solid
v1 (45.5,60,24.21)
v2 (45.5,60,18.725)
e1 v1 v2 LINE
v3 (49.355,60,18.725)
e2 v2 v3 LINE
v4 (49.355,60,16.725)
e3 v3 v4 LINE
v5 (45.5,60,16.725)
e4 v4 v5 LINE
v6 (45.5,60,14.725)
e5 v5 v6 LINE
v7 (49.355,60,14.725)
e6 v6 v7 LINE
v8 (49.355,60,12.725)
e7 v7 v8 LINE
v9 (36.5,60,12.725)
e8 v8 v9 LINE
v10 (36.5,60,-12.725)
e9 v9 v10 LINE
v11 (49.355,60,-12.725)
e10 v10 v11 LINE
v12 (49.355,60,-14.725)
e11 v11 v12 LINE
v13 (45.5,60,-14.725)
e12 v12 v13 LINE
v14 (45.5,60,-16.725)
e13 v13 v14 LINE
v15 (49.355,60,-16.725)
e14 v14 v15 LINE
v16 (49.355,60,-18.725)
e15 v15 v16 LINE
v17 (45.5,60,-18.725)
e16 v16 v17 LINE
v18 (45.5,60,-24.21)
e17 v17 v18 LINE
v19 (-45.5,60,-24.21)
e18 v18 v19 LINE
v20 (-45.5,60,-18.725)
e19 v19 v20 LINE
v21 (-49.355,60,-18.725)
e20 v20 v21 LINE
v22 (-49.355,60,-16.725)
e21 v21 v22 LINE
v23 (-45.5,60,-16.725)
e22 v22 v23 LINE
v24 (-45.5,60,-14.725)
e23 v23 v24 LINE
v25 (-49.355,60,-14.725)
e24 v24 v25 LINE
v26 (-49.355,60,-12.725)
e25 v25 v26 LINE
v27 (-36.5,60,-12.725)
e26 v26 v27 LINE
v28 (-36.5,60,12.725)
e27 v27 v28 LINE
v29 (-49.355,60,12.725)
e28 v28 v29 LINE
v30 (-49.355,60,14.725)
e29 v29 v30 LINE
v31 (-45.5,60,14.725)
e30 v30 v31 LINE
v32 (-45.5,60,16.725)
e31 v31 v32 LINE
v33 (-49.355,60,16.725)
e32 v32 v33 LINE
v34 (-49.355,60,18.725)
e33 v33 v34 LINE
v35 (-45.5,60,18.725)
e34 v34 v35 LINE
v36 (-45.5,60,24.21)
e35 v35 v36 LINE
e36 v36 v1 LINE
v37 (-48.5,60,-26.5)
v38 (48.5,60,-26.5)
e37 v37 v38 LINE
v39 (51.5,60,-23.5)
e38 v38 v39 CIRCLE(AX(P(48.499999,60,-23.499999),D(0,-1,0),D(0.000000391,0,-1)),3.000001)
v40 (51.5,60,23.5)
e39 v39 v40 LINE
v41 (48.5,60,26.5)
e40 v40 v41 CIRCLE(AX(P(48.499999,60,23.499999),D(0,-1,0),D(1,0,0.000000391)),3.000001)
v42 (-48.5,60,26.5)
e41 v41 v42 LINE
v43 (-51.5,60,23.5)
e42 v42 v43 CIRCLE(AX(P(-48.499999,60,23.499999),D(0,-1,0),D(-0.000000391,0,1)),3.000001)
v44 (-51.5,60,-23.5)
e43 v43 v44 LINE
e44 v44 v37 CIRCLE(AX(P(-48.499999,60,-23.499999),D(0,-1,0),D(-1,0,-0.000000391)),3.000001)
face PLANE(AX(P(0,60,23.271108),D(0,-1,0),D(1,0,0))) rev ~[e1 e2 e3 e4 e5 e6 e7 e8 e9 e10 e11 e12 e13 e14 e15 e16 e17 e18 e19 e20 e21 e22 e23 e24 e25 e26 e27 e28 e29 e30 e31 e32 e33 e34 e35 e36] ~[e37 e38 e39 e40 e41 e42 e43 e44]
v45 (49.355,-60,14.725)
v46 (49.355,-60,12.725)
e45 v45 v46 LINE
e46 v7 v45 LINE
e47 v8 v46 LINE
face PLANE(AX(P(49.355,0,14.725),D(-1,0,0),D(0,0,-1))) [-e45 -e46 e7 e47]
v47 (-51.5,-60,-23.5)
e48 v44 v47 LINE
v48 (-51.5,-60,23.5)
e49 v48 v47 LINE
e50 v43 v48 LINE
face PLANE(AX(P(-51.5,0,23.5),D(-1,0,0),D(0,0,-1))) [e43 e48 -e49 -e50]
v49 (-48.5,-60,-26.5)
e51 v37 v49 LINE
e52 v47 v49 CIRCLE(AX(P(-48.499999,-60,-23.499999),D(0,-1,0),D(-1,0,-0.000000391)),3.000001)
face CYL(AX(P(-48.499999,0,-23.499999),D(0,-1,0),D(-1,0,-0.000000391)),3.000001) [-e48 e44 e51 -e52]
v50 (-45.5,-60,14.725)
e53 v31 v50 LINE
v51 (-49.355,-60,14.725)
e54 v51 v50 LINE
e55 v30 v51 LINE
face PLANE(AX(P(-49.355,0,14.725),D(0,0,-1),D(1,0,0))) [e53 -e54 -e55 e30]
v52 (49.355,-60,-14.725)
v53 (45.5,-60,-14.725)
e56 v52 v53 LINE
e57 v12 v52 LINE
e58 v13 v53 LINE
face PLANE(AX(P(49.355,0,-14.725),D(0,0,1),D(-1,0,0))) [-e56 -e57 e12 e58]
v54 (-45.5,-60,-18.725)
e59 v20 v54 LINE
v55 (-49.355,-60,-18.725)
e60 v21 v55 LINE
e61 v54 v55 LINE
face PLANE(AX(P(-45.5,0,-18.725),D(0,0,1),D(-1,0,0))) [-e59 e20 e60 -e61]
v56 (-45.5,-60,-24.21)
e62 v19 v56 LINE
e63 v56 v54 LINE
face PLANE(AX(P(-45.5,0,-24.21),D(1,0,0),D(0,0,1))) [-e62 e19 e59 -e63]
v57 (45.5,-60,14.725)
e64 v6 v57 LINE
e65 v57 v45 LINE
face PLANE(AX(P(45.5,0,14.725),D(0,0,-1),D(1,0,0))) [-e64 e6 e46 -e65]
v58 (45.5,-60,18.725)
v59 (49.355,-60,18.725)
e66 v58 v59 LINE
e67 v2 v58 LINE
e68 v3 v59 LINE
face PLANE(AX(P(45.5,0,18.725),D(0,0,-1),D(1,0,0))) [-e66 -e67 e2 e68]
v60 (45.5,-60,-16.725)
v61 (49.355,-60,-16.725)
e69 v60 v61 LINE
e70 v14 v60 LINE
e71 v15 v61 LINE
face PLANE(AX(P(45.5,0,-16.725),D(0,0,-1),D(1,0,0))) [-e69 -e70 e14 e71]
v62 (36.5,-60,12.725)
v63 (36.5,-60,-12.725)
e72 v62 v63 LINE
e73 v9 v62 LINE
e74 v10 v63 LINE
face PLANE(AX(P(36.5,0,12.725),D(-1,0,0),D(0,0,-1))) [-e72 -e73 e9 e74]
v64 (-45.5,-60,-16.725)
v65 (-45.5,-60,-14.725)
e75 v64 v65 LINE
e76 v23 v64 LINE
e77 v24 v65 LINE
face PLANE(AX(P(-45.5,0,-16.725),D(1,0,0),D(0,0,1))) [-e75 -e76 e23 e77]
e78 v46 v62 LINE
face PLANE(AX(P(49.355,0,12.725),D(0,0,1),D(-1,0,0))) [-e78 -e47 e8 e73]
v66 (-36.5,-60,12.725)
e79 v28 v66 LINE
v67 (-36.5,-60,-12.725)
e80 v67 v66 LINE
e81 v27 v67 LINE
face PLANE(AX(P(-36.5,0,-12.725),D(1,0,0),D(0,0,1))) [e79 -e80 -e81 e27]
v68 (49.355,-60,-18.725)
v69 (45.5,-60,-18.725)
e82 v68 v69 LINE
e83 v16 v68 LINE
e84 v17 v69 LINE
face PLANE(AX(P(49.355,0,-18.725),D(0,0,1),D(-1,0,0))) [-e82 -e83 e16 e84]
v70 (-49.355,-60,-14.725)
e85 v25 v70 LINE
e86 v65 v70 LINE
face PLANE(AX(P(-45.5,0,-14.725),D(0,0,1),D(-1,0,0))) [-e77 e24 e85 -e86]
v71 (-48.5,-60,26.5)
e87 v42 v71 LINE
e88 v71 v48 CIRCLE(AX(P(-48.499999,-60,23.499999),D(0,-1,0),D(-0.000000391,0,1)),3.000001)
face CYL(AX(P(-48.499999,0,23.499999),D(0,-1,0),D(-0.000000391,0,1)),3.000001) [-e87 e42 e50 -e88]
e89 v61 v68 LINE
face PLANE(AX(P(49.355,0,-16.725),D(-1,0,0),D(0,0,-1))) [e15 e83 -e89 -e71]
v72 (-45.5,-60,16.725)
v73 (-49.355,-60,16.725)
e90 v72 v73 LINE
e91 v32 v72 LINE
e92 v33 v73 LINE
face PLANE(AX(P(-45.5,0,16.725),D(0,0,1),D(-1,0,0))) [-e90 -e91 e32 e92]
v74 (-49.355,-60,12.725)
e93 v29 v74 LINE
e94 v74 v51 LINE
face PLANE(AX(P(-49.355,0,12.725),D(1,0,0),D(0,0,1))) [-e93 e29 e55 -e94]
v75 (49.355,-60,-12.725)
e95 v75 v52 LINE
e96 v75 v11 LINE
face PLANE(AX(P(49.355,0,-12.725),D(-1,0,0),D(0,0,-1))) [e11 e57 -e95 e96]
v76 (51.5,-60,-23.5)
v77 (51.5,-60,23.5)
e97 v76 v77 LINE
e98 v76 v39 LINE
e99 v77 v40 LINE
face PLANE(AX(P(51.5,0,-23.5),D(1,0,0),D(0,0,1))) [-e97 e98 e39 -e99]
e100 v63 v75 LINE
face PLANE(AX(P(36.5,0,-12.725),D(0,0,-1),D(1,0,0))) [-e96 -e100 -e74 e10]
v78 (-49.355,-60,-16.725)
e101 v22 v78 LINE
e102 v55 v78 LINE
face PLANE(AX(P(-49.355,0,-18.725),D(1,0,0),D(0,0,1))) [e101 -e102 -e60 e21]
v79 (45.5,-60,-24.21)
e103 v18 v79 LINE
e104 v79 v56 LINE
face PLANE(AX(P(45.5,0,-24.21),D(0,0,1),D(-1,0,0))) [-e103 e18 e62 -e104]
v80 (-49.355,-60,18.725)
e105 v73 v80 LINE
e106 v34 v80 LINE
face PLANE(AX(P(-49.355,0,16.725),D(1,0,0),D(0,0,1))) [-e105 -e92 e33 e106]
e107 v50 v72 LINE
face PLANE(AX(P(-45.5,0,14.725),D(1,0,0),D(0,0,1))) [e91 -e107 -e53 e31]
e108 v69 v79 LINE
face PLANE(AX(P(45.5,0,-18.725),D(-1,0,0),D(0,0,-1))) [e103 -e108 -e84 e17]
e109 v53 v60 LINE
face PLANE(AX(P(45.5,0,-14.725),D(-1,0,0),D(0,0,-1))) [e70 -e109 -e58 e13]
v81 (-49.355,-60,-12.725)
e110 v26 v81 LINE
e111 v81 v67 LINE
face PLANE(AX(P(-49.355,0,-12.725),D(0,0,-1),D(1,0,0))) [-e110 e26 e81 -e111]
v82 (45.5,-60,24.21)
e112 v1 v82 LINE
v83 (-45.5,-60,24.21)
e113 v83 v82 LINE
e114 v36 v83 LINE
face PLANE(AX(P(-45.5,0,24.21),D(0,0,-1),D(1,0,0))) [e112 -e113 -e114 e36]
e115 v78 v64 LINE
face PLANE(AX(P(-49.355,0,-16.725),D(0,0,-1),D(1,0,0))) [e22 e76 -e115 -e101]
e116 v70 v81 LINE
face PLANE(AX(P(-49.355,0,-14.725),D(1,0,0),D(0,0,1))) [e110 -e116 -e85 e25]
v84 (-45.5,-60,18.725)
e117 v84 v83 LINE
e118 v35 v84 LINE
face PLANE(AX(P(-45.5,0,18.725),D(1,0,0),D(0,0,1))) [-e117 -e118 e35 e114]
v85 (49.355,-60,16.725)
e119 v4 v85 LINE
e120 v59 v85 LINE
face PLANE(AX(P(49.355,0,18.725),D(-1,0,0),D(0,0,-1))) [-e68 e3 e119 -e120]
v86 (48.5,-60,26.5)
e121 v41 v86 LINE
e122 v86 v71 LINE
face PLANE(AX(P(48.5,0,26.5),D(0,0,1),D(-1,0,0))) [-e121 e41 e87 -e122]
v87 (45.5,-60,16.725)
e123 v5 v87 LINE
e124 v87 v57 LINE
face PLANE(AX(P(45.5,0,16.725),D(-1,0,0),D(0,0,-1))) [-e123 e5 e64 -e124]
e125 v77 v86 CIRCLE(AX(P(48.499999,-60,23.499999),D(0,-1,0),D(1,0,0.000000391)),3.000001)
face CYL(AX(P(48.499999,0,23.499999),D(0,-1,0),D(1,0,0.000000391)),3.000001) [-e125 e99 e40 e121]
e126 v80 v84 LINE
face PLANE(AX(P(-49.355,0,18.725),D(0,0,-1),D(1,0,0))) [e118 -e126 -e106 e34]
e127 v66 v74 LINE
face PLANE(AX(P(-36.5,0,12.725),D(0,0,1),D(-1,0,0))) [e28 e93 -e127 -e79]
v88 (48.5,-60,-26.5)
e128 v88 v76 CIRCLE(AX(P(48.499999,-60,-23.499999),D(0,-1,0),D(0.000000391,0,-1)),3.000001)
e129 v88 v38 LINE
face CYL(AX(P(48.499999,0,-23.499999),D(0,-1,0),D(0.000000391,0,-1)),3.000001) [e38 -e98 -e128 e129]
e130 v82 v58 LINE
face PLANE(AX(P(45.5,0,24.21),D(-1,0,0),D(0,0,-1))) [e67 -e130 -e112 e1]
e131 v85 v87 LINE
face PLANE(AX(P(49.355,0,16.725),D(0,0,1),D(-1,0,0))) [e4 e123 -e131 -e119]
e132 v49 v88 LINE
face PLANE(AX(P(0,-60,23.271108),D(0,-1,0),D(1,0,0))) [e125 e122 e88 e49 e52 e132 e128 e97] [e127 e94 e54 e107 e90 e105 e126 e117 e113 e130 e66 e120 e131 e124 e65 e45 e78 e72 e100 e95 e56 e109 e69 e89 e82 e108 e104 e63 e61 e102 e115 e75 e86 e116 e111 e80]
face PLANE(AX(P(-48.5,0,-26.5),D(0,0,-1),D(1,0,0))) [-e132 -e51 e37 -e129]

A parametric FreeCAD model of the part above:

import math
import FreeCAD as App
import Part
import Sketcher
Q = App.Units.Quantity

doc = App.newDocument("Part")
body = doc.addObject("PartDesign::Body", "Body")

sketch1 = doc.addObject("Sketcher::SketchObject", "Sketch")
body.addObject(sketch1)
sketch1.AttachmentSupport = (doc.XZ_Plane, [""])
sketch1.MapMode = "FlatFace"
sketch1.addGeometry(Part.ArcOfCircle(Part.Circle(App.Vector(48.5, 23.5, 0), App.Vector(0, 0, 1), 3), math.radians(0), math.radians(90)), False)
sketch1.addGeometry(Part.LineSegment(App.Vector(48.5, 26.5, 0), App.Vector(-48.5, 26.5, 0)), False)
sketch1.addGeometry(Part.ArcOfCircle(Part.Circle(App.Vector(-48.5, 23.5, 0), App.Vector(0, 0, 1), 3), math.radians(90), math.radians(180)), False)
sketch1.addGeometry(Part.LineSegment(App.Vector(-51.5, 23.5, 0), App.Vector(-51.5, -23.5, 0)), False)
sketch1.addGeometry(Part.ArcOfCircle(Part.Circle(App.Vector(-48.5, -23.5, 0), App.Vector(0, 0, 1), 3), math.radians(-180), math.radians(-90)), False)
sketch1.addGeometry(Part.LineSegment(App.Vector(-48.5, -26.5, 0), App.Vector(48.5, -26.5, 0)), False)
sketch1.addGeometry(Part.ArcOfCircle(Part.Circle(App.Vector(48.5, -23.5, 0), App.Vector(0, 0, 1), 3), math.radians(-90), math.radians(0)), False)
sketch1.addGeometry(Part.LineSegment(App.Vector(51.5, -23.5, 0), App.Vector(51.5, 23.5, 0)), False)
sketch1.addGeometry(Part.LineSegment(App.Vector(49.4, -12.7, 0), App.Vector(49.4, -14.7, 0)), False)
sketch1.addGeometry(Part.LineSegment(App.Vector(49.4, -14.7, 0), App.Vector(45.5, -14.7, 0)), False)
sketch1.addGeometry(Part.LineSegment(App.Vector(45.5, -14.7, 0), App.Vector(45.5, -16.7, 0)), False)
sketch1.addGeometry(Part.LineSegment(App.Vector(45.5, -16.7, 0), App.Vector(49.4, -16.7, 0)), False)
sketch1.addGeometry(Part.LineSegment(App.Vector(49.4, -16.7, 0), App.Vector(49.4, -18.7, 0)), False)
sketch1.addGeometry(Part.LineSegment(App.Vector(49.4, -18.7, 0), App.Vector(45.5, -18.7, 0)), False)
sketch1.addGeometry(Part.LineSegment(App.Vector(45.5, -18.7, 0), App.Vector(45.5, -24.2, 0)), False)
sketch1.addGeometry(Part.LineSegment(App.Vector(45.5, -24.2, 0), App.Vector(-45.5, -24.2, 0)), False)
sketch1.addGeometry(Part.LineSegment(App.Vector(-45.5, -24.2, 0), App.Vector(-45.5, -18.7, 0)), False)
sketch1.addGeometry(Part.LineSegment(App.Vector(-45.5, -18.7, 0), App.Vector(-49.4, -18.7, 0)), False)
sketch1.addGeometry(Part.LineSegment(App.Vector(-49.4, -18.7, 0), App.Vector(-49.4, -16.7, 0)), False)
sketch1.addGeometry(Part.LineSegment(App.Vector(-49.4, -16.7, 0), App.Vector(-45.5, -16.7, 0)), False)
sketch1.addGeometry(Part.LineSegment(App.Vector(-45.5, -16.7, 0), App.Vector(-45.5, -14.7, 0)), False)
sketch1.addGeometry(Part.LineSegment(App.Vector(-45.5, -14.7, 0), App.Vector(-49.4, -14.7, 0)), False)
sketch1.addGeometry(Part.LineSegment(App.Vector(-49.4, -14.7, 0), App.Vector(-49.4, -12.7, 0)), False)
sketch1.addGeometry(Part.LineSegment(App.Vector(-49.4, -12.7, 0), App.Vector(-36.5, -12.7, 0)), False)
sketch1.addGeometry(Part.LineSegment(App.Vector(-36.5, -12.7, 0), App.Vector(-36.5, 12.7, 0)), False)
sketch1.addGeometry(Part.LineSegment(App.Vector(-36.5, 12.7, 0), App.Vector(-49.4, 12.7, 0)), False)
sketch1.addGeometry(Part.LineSegment(App.Vector(-49.4, 12.7, 0), App.Vector(-49.4, 14.7, 0)), False)
sketch1.addGeometry(Part.LineSegment(App.Vector(-49.4, 14.7, 0), App.Vector(-45.5, 14.7, 0)), False)
sketch1.addGeometry(Part.LineSegment(App.Vector(-45.5, 14.7, 0), App.Vector(-45.5, 16.7, 0)), False)
sketch1.addGeometry(Part.LineSegment(App.Vector(-45.5, 16.7, 0), App.Vector(-49.4, 16.7, 0)), False)
sketch1.addGeometry(Part.LineSegment(App.Vector(-49.4, 16.7, 0), App.Vector(-49.4, 18.7, 0)), False)
sketch1.addGeometry(Part.LineSegment(App.Vector(-49.4, 18.7, 0), App.Vector(-45.5, 18.7, 0)), False)
sketch1.addGeometry(Part.LineSegment(App.Vector(-45.5, 18.7, 0), App.Vector(-45.5, 24.2, 0)), False)
sketch1.addGeometry(Part.LineSegment(App.Vector(-45.5, 24.2, 0), App.Vector(45.5, 24.2, 0)), False)
sketch1.addGeometry(Part.LineSegment(App.Vector(45.5, 24.2, 0), App.Vector(45.5, 18.7, 0)), False)
sketch1.addGeometry(Part.LineSegment(App.Vector(45.5, 18.7, 0), App.Vector(49.4, 18.7, 0)), False)
sketch1.addGeometry(Part.LineSegment(App.Vector(49.4, 18.7, 0), App.Vector(49.4, 16.7, 0)), False)
sketch1.addGeometry(Part.LineSegment(App.Vector(49.4, 16.7, 0), App.Vector(45.5, 16.7, 0)), False)
sketch1.addGeometry(Part.LineSegment(App.Vector(45.5, 16.7, 0), App.Vector(45.5, 14.7, 0)), False)
sketch1.addGeometry(Part.LineSegment(App.Vector(45.5, 14.7, 0), App.Vector(49.4, 14.7, 0)), False)
sketch1.addGeometry(Part.LineSegment(App.Vector(49.4, 14.7, 0), App.Vector(49.4, 12.7, 0)), False)
sketch1.addGeometry(Part.LineSegment(App.Vector(49.4, 12.7, 0), App.Vector(36.5, 12.7, 0)), False)
sketch1.addGeometry(Part.LineSegment(App.Vector(36.5, 12.7, 0), App.Vector(36.5, -12.7, 0)), False)
sketch1.addGeometry(Part.LineSegment(App.Vector(36.5, -12.7, 0), App.Vector(49.4, -12.7, 0)), False)
sketch1.addConstraint(Sketcher.Constraint("Tangent", 0, 2, 1, 1))
sketch1.addConstraint(Sketcher.Constraint("Tangent", 1, 2, 2, 1))
sketch1.addConstraint(Sketcher.Constraint("Tangent", 2, 2, 3, 1))
sketch1.addConstraint(Sketcher.Constraint("Tangent", 3, 2, 4, 1))
sketch1.addConstraint(Sketcher.Constraint("Tangent", 4, 2, 5, 1))
sketch1.addConstraint(Sketcher.Constraint("Tangent", 5, 2, 6, 1))
sketch1.addConstraint(Sketcher.Constraint("Tangent", 6, 2, 7, 1))
sketch1.addConstraint(Sketcher.Constraint("Tangent", 7, 2, 0, 1))
sketch1.addConstraint(Sketcher.Constraint("Coincident", 8, 2, 9, 1))
sketch1.addConstraint(Sketcher.Constraint("Coincident", 9, 2, 10, 1))
sketch1.addConstraint(Sketcher.Constraint("Coincident", 10, 2, 11, 1))
sketch1.addConstraint(Sketcher.Constraint("Coincident", 11, 2, 12, 1))
sketch1.addConstraint(Sketcher.Constraint("Coincident", 12, 2, 13, 1))
sketch1.addConstraint(Sketcher.Constraint("Coincident", 13, 2, 14, 1))
sketch1.addConstraint(Sketcher.Constraint("Coincident", 14, 2, 15, 1))
sketch1.addConstraint(Sketcher.Constraint("Coincident", 15, 2, 16, 1))
sketch1.addConstraint(Sketcher.Constraint("Coincident", 16, 2, 17, 1))
sketch1.addConstraint(Sketcher.Constraint("Coincident", 17, 2, 18, 1))
sketch1.addConstraint(Sketcher.Constraint("Coincident", 18, 2, 19, 1))
sketch1.addConstraint(Sketcher.Constraint("Coincident", 19, 2, 20, 1))
sketch1.addConstraint(Sketcher.Constraint("Coincident", 20, 2, 21, 1))
sketch1.addConstraint(Sketcher.Constraint("Coincident", 21, 2, 22, 1))
sketch1.addConstraint(Sketcher.Constraint("Coincident", 22, 2, 23, 1))
sketch1.addConstraint(Sketcher.Constraint("Coincident", 23, 2, 24, 1))
sketch1.addConstraint(Sketcher.Constraint("Coincident", 24, 2, 25, 1))
sketch1.addConstraint(Sketcher.Constraint("Coincident", 25, 2, 26, 1))
sketch1.addConstraint(Sketcher.Constraint("Coincident", 26, 2, 27, 1))
sketch1.addConstraint(Sketcher.Constraint("Coincident", 27, 2, 28, 1))
sketch1.addConstraint(Sketcher.Constraint("Coincident", 28, 2, 29, 1))
sketch1.addConstraint(Sketcher.Constraint("Coincident", 29, 2, 30, 1))
sketch1.addConstraint(Sketcher.Constraint("Coincident", 30, 2, 31, 1))
sketch1.addConstraint(Sketcher.Constraint("Coincident", 31, 2, 32, 1))
sketch1.addConstraint(Sketcher.Constraint("Coincident", 32, 2, 33, 1))
sketch1.addConstraint(Sketcher.Constraint("Coincident", 33, 2, 34, 1))
sketch1.addConstraint(Sketcher.Constraint("Coincident", 34, 2, 35, 1))
sketch1.addConstraint(Sketcher.Constraint("Coincident", 35, 2, 36, 1))
sketch1.addConstraint(Sketcher.Constraint("Coincident", 36, 2, 37, 1))
sketch1.addConstraint(Sketcher.Constraint("Coincident", 37, 2, 38, 1))
sketch1.addConstraint(Sketcher.Constraint("Coincident", 38, 2, 39, 1))
sketch1.addConstraint(Sketcher.Constraint("Coincident", 39, 2, 40, 1))
sketch1.addConstraint(Sketcher.Constraint("Coincident", 40, 2, 41, 1))
sketch1.addConstraint(Sketcher.Constraint("Coincident", 41, 2, 42, 1))
sketch1.addConstraint(Sketcher.Constraint("Coincident", 42, 2, 43, 1))
sketch1.addConstraint(Sketcher.Constraint("Coincident", 43, 2, 8, 1))
sketch1.addConstraint(Sketcher.Constraint("Horizontal", 1))
sketch1.addConstraint(Sketcher.Constraint("Vertical", 3))
sketch1.addConstraint(Sketcher.Constraint("Horizontal", 5))
sketch1.addConstraint(Sketcher.Constraint("Vertical", 7))
sketch1.addConstraint(Sketcher.Constraint("Vertical", 8))
sketch1.addConstraint(Sketcher.Constraint("Horizontal", 9))
sketch1.addConstraint(Sketcher.Constraint("Vertical", 10))
sketch1.addConstraint(Sketcher.Constraint("Horizontal", 11))
sketch1.addConstraint(Sketcher.Constraint("Vertical", 12))
sketch1.addConstraint(Sketcher.Constraint("Horizontal", 13))
sketch1.addConstraint(Sketcher.Constraint("Vertical", 14))
sketch1.addConstraint(Sketcher.Constraint("Horizontal", 15))
sketch1.addConstraint(Sketcher.Constraint("Vertical", 16))
sketch1.addConstraint(Sketcher.Constraint("Horizontal", 17))
sketch1.addConstraint(Sketcher.Constraint("Vertical", 18))
sketch1.addConstraint(Sketcher.Constraint("Horizontal", 19))
sketch1.addConstraint(Sketcher.Constraint("Vertical", 20))
sketch1.addConstraint(Sketcher.Constraint("Horizontal", 21))
sketch1.addConstraint(Sketcher.Constraint("Vertical", 22))
sketch1.addConstraint(Sketcher.Constraint("Horizontal", 23))
sketch1.addConstraint(Sketcher.Constraint("Vertical", 24))
sketch1.addConstraint(Sketcher.Constraint("Horizontal", 25))
sketch1.addConstraint(Sketcher.Constraint("Vertical", 26))
sketch1.addConstraint(Sketcher.Constraint("Horizontal", 27))
sketch1.addConstraint(Sketcher.Constraint("Vertical", 28))
sketch1.addConstraint(Sketcher.Constraint("Horizontal", 29))
sketch1.addConstraint(Sketcher.Constraint("Vertical", 30))
sketch1.addConstraint(Sketcher.Constraint("Horizontal", 31))
sketch1.addConstraint(Sketcher.Constraint("Vertical", 32))
sketch1.addConstraint(Sketcher.Constraint("Horizontal", 33))
sketch1.addConstraint(Sketcher.Constraint("Vertical", 34))
sketch1.addConstraint(Sketcher.Constraint("Horizontal", 35))
sketch1.addConstraint(Sketcher.Constraint("Vertical", 36))
sketch1.addConstraint(Sketcher.Constraint("Horizontal", 37))
sketch1.addConstraint(Sketcher.Constraint("Vertical", 38))
sketch1.addConstraint(Sketcher.Constraint("Horizontal", 39))
sketch1.addConstraint(Sketcher.Constraint("Vertical", 40))
sketch1.addConstraint(Sketcher.Constraint("Horizontal", 41))
sketch1.addConstraint(Sketcher.Constraint("Vertical", 42))
sketch1.addConstraint(Sketcher.Constraint("Horizontal", 43))
sketch1.addConstraint(Sketcher.Constraint("Equal", 0, 2))
sketch1.addConstraint(Sketcher.Constraint("Equal", 2, 4))
sketch1.addConstraint(Sketcher.Constraint("Equal", 4, 6))
sketch1.addConstraint(Sketcher.Constraint("Symmetric", 0, 3, 4, 3, -1, 1))
sketch1.addConstraint(Sketcher.Constraint("Symmetric", 8, 2, 26, 2, -1, 1))
sketch1.addConstraint(Sketcher.Constraint("Symmetric", 10, 2, 28, 2, -1, 1))
sketch1.addConstraint(Sketcher.Constraint("Symmetric", 12, 2, 30, 2, -1, 1))
sketch1.addConstraint(Sketcher.Constraint("Symmetric", 14, 2, 32, 2, -1, 1))
sketch1.addConstraint(Sketcher.Constraint("Symmetric", 16, 2, 34, 2, -1, 1))
sketch1.addConstraint(Sketcher.Constraint("Symmetric", 18, 2, 36, 2, -1, 1))
sketch1.addConstraint(Sketcher.Constraint("Symmetric", 20, 2, 38, 2, -1, 1))
sketch1.addConstraint(Sketcher.Constraint("Symmetric", 22, 2, 40, 2, -1, 1))
sketch1.addConstraint(Sketcher.Constraint("Symmetric", 24, 2, 42, 2, -1, 1))
sketch1.addConstraint(Sketcher.Constraint("Symmetric", 13, 2, 16, 2, -2))
sketch1.addConstraint(Sketcher.Constraint("Symmetric", 11, 2, 18, 2, -2))
sketch1.addConstraint(Sketcher.Constraint("Symmetric", 9, 2, 20, 2, -2))
sketch1.addConstraint(Sketcher.Constraint("Symmetric", 25, 2, 40, 2, -2))
sketch1.addConstraint(Sketcher.Constraint("Vertical", 8, 2, 11, 2))
sketch1.addConstraint(Sketcher.Constraint("Vertical", 10, 2, 13, 2))
sketch1.addConstraint(Sketcher.Constraint("Equal", 8, 10))
sketch1.addConstraint(Sketcher.Constraint("Equal", 10, 12))
sketch1.addConstraint(Sketcher.Constraint("Radius", 0, Q("3.000001 mm")))
sketch1.addConstraint(Sketcher.Constraint("DistanceX", 1, 2, 1, 1, Q("97 mm")))
sketch1.addConstraint(Sketcher.Constraint("DistanceX", 15, 2, 15, 1, Q("91 mm")))
sketch1.addConstraint(Sketcher.Constraint("DistanceY", 3, 2, 3, 1, Q("47 mm")))
sketch1.addConstraint(Sketcher.Constraint("DistanceY", 8, 2, 8, 1, Q("2 mm")))
sketch1.addConstraint(Sketcher.Constraint("DistanceX", 20, 2, 23, 2, Q("9 mm")))
sketch1.addConstraint(Sketcher.Constraint("DistanceY", 24, 1, 24, 2, Q("25.45 mm")))
sketch1.addConstraint(Sketcher.Constraint("DistanceX", 9, 2, 9, 1, Q("3.855 mm")))
sketch1.addConstraint(Sketcher.Constraint("DistanceY", 14, 2, 14, 1, Q("5.485 mm")))
pad1 = doc.addObject("PartDesign::Pad", "Pad")
body.addObject(pad1)
pad1.Profile = sketch1
pad1.Length = 120
pad1.Midplane = True

doc.recompute()
